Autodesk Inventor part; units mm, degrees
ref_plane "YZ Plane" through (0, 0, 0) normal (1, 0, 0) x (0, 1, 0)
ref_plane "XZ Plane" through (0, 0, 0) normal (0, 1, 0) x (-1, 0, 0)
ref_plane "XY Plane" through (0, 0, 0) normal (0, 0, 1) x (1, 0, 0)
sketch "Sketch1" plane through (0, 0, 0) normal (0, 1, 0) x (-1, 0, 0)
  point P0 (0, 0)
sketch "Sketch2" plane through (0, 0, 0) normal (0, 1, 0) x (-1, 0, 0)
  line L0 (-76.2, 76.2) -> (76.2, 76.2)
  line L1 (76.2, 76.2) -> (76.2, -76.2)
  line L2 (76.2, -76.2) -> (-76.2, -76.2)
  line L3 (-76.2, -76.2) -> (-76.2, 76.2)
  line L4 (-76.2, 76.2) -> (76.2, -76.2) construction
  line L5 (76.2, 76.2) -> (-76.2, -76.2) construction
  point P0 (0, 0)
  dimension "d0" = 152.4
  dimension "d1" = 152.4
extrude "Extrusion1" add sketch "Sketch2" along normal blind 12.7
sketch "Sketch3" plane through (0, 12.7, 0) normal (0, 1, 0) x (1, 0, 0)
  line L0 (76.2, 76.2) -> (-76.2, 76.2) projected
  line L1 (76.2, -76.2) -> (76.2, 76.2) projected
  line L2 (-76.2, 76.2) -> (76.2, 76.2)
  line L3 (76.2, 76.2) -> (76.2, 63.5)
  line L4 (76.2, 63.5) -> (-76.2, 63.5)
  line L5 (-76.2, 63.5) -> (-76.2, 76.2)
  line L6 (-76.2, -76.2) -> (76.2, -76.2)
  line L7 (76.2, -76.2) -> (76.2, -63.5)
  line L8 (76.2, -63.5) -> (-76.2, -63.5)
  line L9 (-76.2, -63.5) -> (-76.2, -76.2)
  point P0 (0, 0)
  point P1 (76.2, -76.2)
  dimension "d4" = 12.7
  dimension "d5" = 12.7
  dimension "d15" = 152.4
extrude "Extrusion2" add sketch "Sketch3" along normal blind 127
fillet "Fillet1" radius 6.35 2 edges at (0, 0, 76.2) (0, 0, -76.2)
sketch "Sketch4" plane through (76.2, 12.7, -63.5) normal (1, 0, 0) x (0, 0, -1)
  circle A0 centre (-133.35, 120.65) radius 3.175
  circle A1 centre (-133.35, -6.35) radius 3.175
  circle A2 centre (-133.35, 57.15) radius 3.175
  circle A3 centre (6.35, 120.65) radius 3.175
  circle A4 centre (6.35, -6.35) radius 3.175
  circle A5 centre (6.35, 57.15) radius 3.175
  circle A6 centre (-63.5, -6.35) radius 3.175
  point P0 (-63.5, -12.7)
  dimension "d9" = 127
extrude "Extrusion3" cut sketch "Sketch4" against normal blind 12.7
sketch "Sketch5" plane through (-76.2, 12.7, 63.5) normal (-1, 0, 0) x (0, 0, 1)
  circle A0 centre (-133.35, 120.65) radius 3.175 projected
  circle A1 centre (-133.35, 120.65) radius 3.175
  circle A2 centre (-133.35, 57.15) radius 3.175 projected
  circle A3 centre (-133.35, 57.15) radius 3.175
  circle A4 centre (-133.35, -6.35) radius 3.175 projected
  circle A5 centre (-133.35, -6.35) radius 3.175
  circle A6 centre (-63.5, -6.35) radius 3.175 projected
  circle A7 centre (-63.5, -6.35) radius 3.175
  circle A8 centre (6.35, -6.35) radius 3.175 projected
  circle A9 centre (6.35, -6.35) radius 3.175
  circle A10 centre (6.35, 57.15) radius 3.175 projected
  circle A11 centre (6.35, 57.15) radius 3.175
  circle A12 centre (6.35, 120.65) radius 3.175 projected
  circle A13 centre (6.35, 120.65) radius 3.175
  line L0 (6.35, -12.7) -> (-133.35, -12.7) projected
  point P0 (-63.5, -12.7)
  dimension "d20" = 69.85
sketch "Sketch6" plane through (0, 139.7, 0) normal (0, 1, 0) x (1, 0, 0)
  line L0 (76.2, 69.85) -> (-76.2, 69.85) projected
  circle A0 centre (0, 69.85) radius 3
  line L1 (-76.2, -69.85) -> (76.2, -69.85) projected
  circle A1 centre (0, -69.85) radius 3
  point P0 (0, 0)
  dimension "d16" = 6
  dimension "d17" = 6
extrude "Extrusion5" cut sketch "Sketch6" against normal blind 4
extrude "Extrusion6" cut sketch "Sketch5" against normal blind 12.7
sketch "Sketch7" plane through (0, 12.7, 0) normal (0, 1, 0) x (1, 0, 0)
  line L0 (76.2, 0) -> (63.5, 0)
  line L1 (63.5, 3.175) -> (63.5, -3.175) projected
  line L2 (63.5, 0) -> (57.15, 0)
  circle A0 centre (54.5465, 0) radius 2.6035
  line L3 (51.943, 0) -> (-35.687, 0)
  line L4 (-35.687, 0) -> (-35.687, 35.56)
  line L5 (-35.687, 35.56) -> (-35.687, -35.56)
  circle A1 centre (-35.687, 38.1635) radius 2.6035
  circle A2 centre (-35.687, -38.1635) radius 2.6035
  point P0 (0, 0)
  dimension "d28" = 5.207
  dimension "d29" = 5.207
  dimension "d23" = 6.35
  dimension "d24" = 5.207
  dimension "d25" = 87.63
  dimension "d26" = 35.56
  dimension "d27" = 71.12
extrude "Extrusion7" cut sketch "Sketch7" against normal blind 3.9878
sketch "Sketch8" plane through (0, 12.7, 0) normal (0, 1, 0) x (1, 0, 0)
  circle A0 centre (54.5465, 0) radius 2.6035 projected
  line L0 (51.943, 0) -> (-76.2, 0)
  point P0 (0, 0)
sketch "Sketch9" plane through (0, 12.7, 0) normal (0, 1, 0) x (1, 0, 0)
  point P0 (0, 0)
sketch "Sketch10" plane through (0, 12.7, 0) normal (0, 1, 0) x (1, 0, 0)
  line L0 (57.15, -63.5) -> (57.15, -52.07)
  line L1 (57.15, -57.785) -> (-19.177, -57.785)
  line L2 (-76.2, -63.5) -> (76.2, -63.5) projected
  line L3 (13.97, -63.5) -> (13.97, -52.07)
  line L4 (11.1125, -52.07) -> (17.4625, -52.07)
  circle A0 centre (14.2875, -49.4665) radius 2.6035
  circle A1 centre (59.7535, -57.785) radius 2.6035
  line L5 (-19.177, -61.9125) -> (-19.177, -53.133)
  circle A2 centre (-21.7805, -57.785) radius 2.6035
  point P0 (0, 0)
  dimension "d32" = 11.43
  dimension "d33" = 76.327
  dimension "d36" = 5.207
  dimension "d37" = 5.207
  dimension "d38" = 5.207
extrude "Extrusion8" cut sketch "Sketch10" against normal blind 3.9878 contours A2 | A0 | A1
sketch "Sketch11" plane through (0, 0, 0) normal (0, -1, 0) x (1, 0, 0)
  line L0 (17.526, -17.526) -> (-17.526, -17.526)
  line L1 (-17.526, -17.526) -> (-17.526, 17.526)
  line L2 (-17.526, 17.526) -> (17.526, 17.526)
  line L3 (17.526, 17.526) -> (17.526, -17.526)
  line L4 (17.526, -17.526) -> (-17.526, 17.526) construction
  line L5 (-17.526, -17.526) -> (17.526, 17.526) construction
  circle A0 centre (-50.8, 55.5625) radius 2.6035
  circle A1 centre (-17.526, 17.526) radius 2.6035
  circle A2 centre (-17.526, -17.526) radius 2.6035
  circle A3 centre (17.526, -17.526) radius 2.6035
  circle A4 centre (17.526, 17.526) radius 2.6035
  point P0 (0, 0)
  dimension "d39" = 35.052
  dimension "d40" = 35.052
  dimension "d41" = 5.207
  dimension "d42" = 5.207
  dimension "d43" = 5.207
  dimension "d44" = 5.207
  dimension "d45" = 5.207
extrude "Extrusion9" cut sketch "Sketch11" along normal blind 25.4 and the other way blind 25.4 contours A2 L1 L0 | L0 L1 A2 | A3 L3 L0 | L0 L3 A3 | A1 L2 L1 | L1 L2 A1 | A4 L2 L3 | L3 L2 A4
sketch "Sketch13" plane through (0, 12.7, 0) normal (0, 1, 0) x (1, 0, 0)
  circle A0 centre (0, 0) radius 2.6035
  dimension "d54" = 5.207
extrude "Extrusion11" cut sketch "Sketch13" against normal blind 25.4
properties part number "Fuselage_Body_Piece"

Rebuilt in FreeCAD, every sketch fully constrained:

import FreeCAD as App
import Part
import Sketcher

V = App.Vector
Q = App.Units.Quantity


def edges_at(feature, points):
    """Names of the edges that pass closest to the given points."""
    edges = feature.Shape.Edges
    near = lambda p: min(range(len(edges)), key=lambda i: edges[i].distToShape(Part.Vertex(*p))[0])
    return sorted({f"Edge{near(p) + 1}" for p in points})


def add_polygon(sketch, points):
    """Adds a closed chain of lines whose ends are joined by coincident constraints."""
    first, n = sketch.GeometryCount, len(points)
    for a, b in zip(points, points[1:] + points[:1]):
        sketch.addGeometry(Part.LineSegment(App.Vector(*a, 0), App.Vector(*b, 0)), False)
    for i in range(n):
        sketch.addConstraint(Sketcher.Constraint("Coincident", first + i, 2, first + (i + 1) % n, 1))

doc = App.newDocument("Part")
body = doc.addObject("PartDesign::Body", "Body")

sketch1 = body.newObject("Sketcher::SketchObject", "Sketch")
sketch1.AttachmentSupport = (doc.getObject("XZ_Plane"), [""])
sketch1.MapMode = "FlatFace"
add_polygon(sketch1, [(-76, 76), (76, 76), (76, -76), (-76, -76)])
sketch1.addConstraint(Sketcher.Constraint("Horizontal", 0))
sketch1.addConstraint(Sketcher.Constraint("Vertical", 1))
sketch1.addConstraint(Sketcher.Constraint("Horizontal", 2))
sketch1.addConstraint(Sketcher.Constraint("Vertical", 3))
sketch1.addConstraint(Sketcher.Constraint("Symmetric", 0, 2, 2, 2, -1, 1))
sketch1.addConstraint(Sketcher.Constraint("Equal", 2, 1))
sketch1.addConstraint(Sketcher.Constraint("DistanceX", 0, 1, 0, 2, Q("6 in")))
pad1 = body.newObject("PartDesign::Pad", "Pad")
pad1.Profile = sketch1
pad1.Length = Q("0.5 in")
pad1.Reversed = True

sketch2 = body.newObject("Sketcher::SketchObject", "Sketch001")
sketch2.AttachmentSupport = (doc.getObject("XZ_Plane"), [""])
sketch2.MapMode = "FlatFace"
sketch2.AttachmentOffset = App.Placement(V(0, 0, -0.5 * 25.4), App.Rotation())
add_polygon(sketch2, [(76, -64), (76, -76), (-76, -76), (-76, -64)])
add_polygon(sketch2, [(76, 76), (76, 64), (-76, 64), (-76, 76)])
sketch2.addConstraint(Sketcher.Constraint("Vertical", 0))
sketch2.addConstraint(Sketcher.Constraint("Horizontal", 1))
sketch2.addConstraint(Sketcher.Constraint("Vertical", 2))
sketch2.addConstraint(Sketcher.Constraint("Horizontal", 3))
sketch2.addConstraint(Sketcher.Constraint("Vertical", 4))
sketch2.addConstraint(Sketcher.Constraint("Horizontal", 5))
sketch2.addConstraint(Sketcher.Constraint("Vertical", 6))
sketch2.addConstraint(Sketcher.Constraint("Horizontal", 7))
sketch2.addConstraint(Sketcher.Constraint("Symmetric", 2, 2, 4, 2, -1, 1))
sketch2.addConstraint(Sketcher.Constraint("Symmetric", 0, 2, 6, 2, -1, 1))
sketch2.addConstraint(Sketcher.Constraint("Vertical", 3, 2, 4, 2))
sketch2.addConstraint(Sketcher.Constraint("DistanceX", 1, 2, 1, 1, Q("6 in")))
sketch2.addConstraint(Sketcher.Constraint("DistanceY", 0, 2, 0, 1, Q("0.5 in")))
sketch2.addConstraint(Sketcher.Constraint("DistanceY", 1, 2, 6, 2, Q("6 in")))
pad2 = body.newObject("PartDesign::Pad", "Pad001")
pad2.Profile = sketch2
pad2.Length = Q("5 in")
pad2.Reversed = True
doc.recompute()

fillet = body.newObject("PartDesign::Fillet", "Fillet")
fillet.Base = (pad2, edges_at(pad2, [(0, 0, 76.2), (0, 0, -76.2)]))
fillet.Radius = Q("0.25 in")

sketch3 = body.newObject("Sketcher::SketchObject", "Sketch002")
sketch3.AttachmentSupport = (doc.getObject("YZ_Plane"), [""])
sketch3.MapMode = "FlatFace"
sketch3.AttachmentOffset = App.Placement(V(0, 0, 3 * 25.4), App.Rotation())
sketch3.addGeometry(Part.Circle(V(133.3, 69.8, 0), V(0, 0, 1), 3.2), False)
sketch3.addGeometry(Part.Circle(V(6.3, 69.8, 0), V(0, 0, 1), 3.2), False)
sketch3.addGeometry(Part.Circle(V(69.8, 69.8, 0), V(0, 0, 1), 3.2), False)
sketch3.addGeometry(Part.Circle(V(133.3, -69.8, 0), V(0, 0, 1), 3.2), False)
sketch3.addGeometry(Part.Circle(V(6.3, -69.8, 0), V(0, 0, 1), 3.2), False)
sketch3.addGeometry(Part.Circle(V(69.8, -69.8, 0), V(0, 0, 1), 3.2), False)
sketch3.addGeometry(Part.Circle(V(6.3, 0, 0), V(0, 0, 1), 3.2), False)
sketch3.addConstraint(Sketcher.Constraint("Equal", 0, 1))
sketch3.addConstraint(Sketcher.Constraint("Equal", 1, 2))
sketch3.addConstraint(Sketcher.Constraint("Equal", 2, 3))
sketch3.addConstraint(Sketcher.Constraint("Equal", 3, 4))
sketch3.addConstraint(Sketcher.Constraint("Equal", 4, 5))
sketch3.addConstraint(Sketcher.Constraint("Equal", 5, 6))
sketch3.addConstraint(Sketcher.Constraint("Symmetric", 0, 3, 3, 3, -1))
sketch3.addConstraint(Sketcher.Constraint("Symmetric", 1, 3, 4, 3, -1))
sketch3.addConstraint(Sketcher.Constraint("Symmetric", 2, 3, 5, 3, -1))
sketch3.addConstraint(Sketcher.Constraint("PointOnObject", 6, 3, -1))
sketch3.addConstraint(Sketcher.Constraint("Horizontal", 0, 3, 1, 3))
sketch3.addConstraint(Sketcher.Constraint("Horizontal", 1, 3, 2, 3))
sketch3.addConstraint(Sketcher.Constraint("Vertical", 4, 3, 6, 3))
sketch3.addConstraint(Sketcher.Constraint("DistanceX", 1, 3, 0, 3, Q("5 in")))
sketch3.addConstraint(Sketcher.Constraint("Diameter", 0, Q("0.25 in")))
sketch3.addConstraint(Sketcher.Constraint("DistanceX", 1, 3, 2, 3, Q("2.5 in")))
sketch3.addConstraint(Sketcher.Constraint("DistanceY", 3, 3, 0, 3, Q("5.5 in")))
sketch3.addConstraint(Sketcher.Constraint("DistanceX", -1, 1, 0, 3, Q("5.25 in")))
pocket1 = body.newObject("PartDesign::Pocket", "Pocket")
pocket1.Profile = sketch3
pocket1.Length = Q("0.5 in")

sketch4 = body.newObject("Sketcher::SketchObject", "Sketch003")
sketch4.AttachmentSupport = (doc.getObject("XZ_Plane"), [""])
sketch4.MapMode = "FlatFace"
sketch4.AttachmentOffset = App.Placement(V(0, 0, -5.5 * 25.4), App.Rotation())
sketch4.addGeometry(Part.Circle(V(0, -69.8, 0), V(0, 0, 1), 3), False)
sketch4.addGeometry(Part.Circle(V(0, 69.8, 0), V(0, 0, 1), 3), False)
sketch4.addConstraint(Sketcher.Constraint("Equal", 0, 1))
sketch4.addConstraint(Sketcher.Constraint("Symmetric", 0, 3, 1, 3, -1, 1))
sketch4.addConstraint(Sketcher.Constraint("PointOnObject", 0, 3, -2))
sketch4.addConstraint(Sketcher.Constraint("Diameter", 0, 6.0))
sketch4.addConstraint(Sketcher.Constraint("DistanceY", 0, 3, 1, 3, Q("5.5 in")))
pocket2 = body.newObject("PartDesign::Pocket", "Pocket001")
pocket2.Profile = sketch4
pocket2.Length = 4
pocket2.Reversed = True

sketch5 = body.newObject("Sketcher::SketchObject", "Sketch004")
sketch5.AttachmentSupport = (doc.getObject("YZ_Plane"), [""])
sketch5.MapMode = "FlatFace"
sketch5.AttachmentOffset = App.Placement(V(0, 0, -3 * 25.4), App.Rotation())
sketch5.addGeometry(Part.Circle(V(133.3, -69.8, 0), V(0, 0, 1), 3.2), False)
sketch5.addGeometry(Part.Circle(V(69.8, -69.8, 0), V(0, 0, 1), 3.2), False)
sketch5.addGeometry(Part.Circle(V(6.3, -69.8, 0), V(0, 0, 1), 3.2), False)
sketch5.addGeometry(Part.Circle(V(6.3, 0, 0), V(0, 0, 1), 3.2), False)
sketch5.addGeometry(Part.Circle(V(6.3, 69.8, 0), V(0, 0, 1), 3.2), False)
sketch5.addGeometry(Part.Circle(V(69.8, 69.8, 0), V(0, 0, 1), 3.2), False)
sketch5.addGeometry(Part.Circle(V(133.3, 69.8, 0), V(0, 0, 1), 3.2), False)
sketch5.addConstraint(Sketcher.Constraint("Equal", 0, 1))
sketch5.addConstraint(Sketcher.Constraint("Equal", 1, 2))
sketch5.addConstraint(Sketcher.Constraint("Equal", 2, 3))
sketch5.addConstraint(Sketcher.Constraint("Equal", 3, 4))
sketch5.addConstraint(Sketcher.Constraint("Equal", 4, 5))
sketch5.addConstraint(Sketcher.Constraint("Equal", 5, 6))
sketch5.addConstraint(Sketcher.Constraint("Symmetric", 2, 3, 4, 3, -1))
sketch5.addConstraint(Sketcher.Constraint("Symmetric", 1, 3, 5, 3, -1))
sketch5.addConstraint(Sketcher.Constraint("Symmetric", 0, 3, 6, 3, -1))
sketch5.addConstraint(Sketcher.Constraint("PointOnObject", 3, 3, -1))
sketch5.addConstraint(Sketcher.Constraint("Horizontal", 0, 3, 1, 3))
sketch5.addConstraint(Sketcher.Constraint("Horizontal", 1, 3, 2, 3))
sketch5.addConstraint(Sketcher.Constraint("Vertical", 2, 3, 3, 3))
sketch5.addConstraint(Sketcher.Constraint("Diameter", 0, Q("0.25 in")))
sketch5.addConstraint(Sketcher.Constraint("DistanceY", 0, 3, -1, 1, Q("2.75 in")))
sketch5.addConstraint(Sketcher.Constraint("DistanceX", -1, 1, 1, 3, Q("2.75 in")))
sketch5.addConstraint(Sketcher.Constraint("DistanceX", 2, 3, 0, 3, Q("5 in")))
sketch5.addConstraint(Sketcher.Constraint("DistanceX", 1, 3, 0, 3, Q("2.5 in")))
pocket3 = body.newObject("PartDesign::Pocket", "Pocket002")
pocket3.Profile = sketch5
pocket3.Length = Q("0.5 in")
pocket3.Reversed = True

sketch6 = body.newObject("Sketcher::SketchObject", "Sketch005")
sketch6.AttachmentSupport = (doc.getObject("XZ_Plane"), [""])
sketch6.MapMode = "FlatFace"
sketch6.AttachmentOffset = App.Placement(V(0, 0, -0.5 * 25.4), App.Rotation())
sketch6.addGeometry(Part.Circle(V(54.5, 0, 0), V(0, 0, 1), 2.6), False)
sketch6.addGeometry(Part.Circle(V(-35.7, 38.2, 0), V(0, 0, 1), 2.6), False)
sketch6.addGeometry(Part.Circle(V(-35.7, -38.2, 0), V(0, 0, 1), 2.6), False)
sketch6.addConstraint(Sketcher.Constraint("Equal", 0, 1))
sketch6.addConstraint(Sketcher.Constraint("Equal", 1, 2))
sketch6.addConstraint(Sketcher.Constraint("Symmetric", 1, 3, 2, 3, -1))
sketch6.addConstraint(Sketcher.Constraint("PointOnObject", 0, 3, -1))
sketch6.addConstraint(Sketcher.Constraint("Diameter", 0, Q("0.205 in")))
sketch6.addConstraint(Sketcher.Constraint("DistanceX", 1, 3, -1, 1, Q("1.405 in")))
sketch6.addConstraint(Sketcher.Constraint("DistanceY", 2, 3, 1, 3, Q("3.005 in")))
sketch6.addConstraint(Sketcher.Constraint("DistanceX", -1, 1, 0, 3, Q("2.1475 in")))
pocket4 = body.newObject("PartDesign::Pocket", "Pocket003")
pocket4.Profile = sketch6
pocket4.Length = Q("0.157 in")
pocket4.Reversed = True

sketch7 = body.newObject("Sketcher::SketchObject", "Sketch006")
sketch7.AttachmentSupport = (doc.getObject("XZ_Plane"), [""])
sketch7.MapMode = "FlatFace"
sketch7.AttachmentOffset = App.Placement(V(0, 0, -0.5 * 25.4), App.Rotation())
sketch7.addGeometry(Part.Circle(V(-21.8, 57.8, 0), V(0, 0, 1), 2.6), False)
sketch7.addGeometry(Part.Circle(V(14.3, 49.5, 0), V(0, 0, 1), 2.6), False)
sketch7.addGeometry(Part.Circle(V(59.8, 57.8, 0), V(0, 0, 1), 2.6), False)
sketch7.addConstraint(Sketcher.Constraint("Equal", 0, 1))
sketch7.addConstraint(Sketcher.Constraint("Equal", 1, 2))
sketch7.addConstraint(Sketcher.Constraint("Horizontal", 0, 3, 2, 3))
sketch7.addConstraint(Sketcher.Constraint("Diameter", 0, Q("0.205 in")))
sketch7.addConstraint(Sketcher.Constraint("DistanceX", 0, 3, 1, 3, Q("1.42 in")))
sketch7.addConstraint(Sketcher.Constraint("DistanceX", 1, 3, 2, 3, Q("1.79 in")))
sketch7.addConstraint(Sketcher.Constraint("DistanceY", -1, 1, 0, 3, Q("2.275 in")))
sketch7.addConstraint(Sketcher.Constraint("DistanceX", -1, 1, 1, 3, Q("0.5625 in")))
sketch7.addConstraint(Sketcher.Constraint("DistanceY", -1, 1, 1, 3, Q("1.9475 in")))
pocket5 = body.newObject("PartDesign::Pocket", "Pocket004")
pocket5.Profile = sketch7
pocket5.Length = Q("0.157 in")
pocket5.Reversed = True

sketch8 = body.newObject("Sketcher::SketchObject", "Sketch007")
sketch8.AttachmentSupport = (doc.getObject("XZ_Plane"), [""])
sketch8.MapMode = "FlatFace"
sketch8.addGeometry(Part.Circle(V(-17.5, -17.5, 0), V(0, 0, 1), 2.6), False)
sketch8.addGeometry(Part.Circle(V(17.5, -17.5, 0), V(0, 0, 1), 2.6), False)
sketch8.addGeometry(Part.Circle(V(-17.5, 17.5, 0), V(0, 0, 1), 2.6), False)
sketch8.addGeometry(Part.Circle(V(17.5, 17.5, 0), V(0, 0, 1), 2.6), False)
sketch8.addConstraint(Sketcher.Constraint("Equal", 0, 1))
sketch8.addConstraint(Sketcher.Constraint("Equal", 1, 2))
sketch8.addConstraint(Sketcher.Constraint("Equal", 2, 3))
sketch8.addConstraint(Sketcher.Constraint("Symmetric", 1, 3, 2, 3, -1, 1))
sketch8.addConstraint(Sketcher.Constraint("Symmetric", 0, 3, 3, 3, -1, 1))
sketch8.addConstraint(Sketcher.Constraint("Symmetric", 0, 3, 1, 3, -2))
sketch8.addConstraint(Sketcher.Constraint("Diameter", 0, Q("0.205 in")))
sketch8.addConstraint(Sketcher.Constraint("DistanceX", 0, 3, 1, 3, Q("1.38 in")))
sketch8.addConstraint(Sketcher.Constraint("DistanceY", 0, 3, 2, 3, Q("1.38 in")))
pocket6 = body.newObject("PartDesign::Pocket", "Pocket005")
pocket6.Profile = sketch8
pocket6.Type = "ThroughAll"
pocket6.Midplane = True

sketch9 = body.newObject("Sketcher::SketchObject", "Sketch008")
sketch9.AttachmentSupport = (doc.getObject("XZ_Plane"), [""])
sketch9.MapMode = "FlatFace"
sketch9.AttachmentOffset = App.Placement(V(0, 0, -0.5 * 25.4), App.Rotation())
sketch9.addGeometry(Part.Circle(V(0, 0, 0), V(0, 0, 1), 2.6), False)
sketch9.addConstraint(Sketcher.Constraint("Coincident", 0, 3, -1, 1))
sketch9.addConstraint(Sketcher.Constraint("Diameter", 0, Q("0.205 in")))
pocket7 = body.newObject("PartDesign::Pocket", "Pocket006")
pocket7.Profile = sketch9
pocket7.Length = Q("1 in")
pocket7.Reversed = True

doc.recompute()
